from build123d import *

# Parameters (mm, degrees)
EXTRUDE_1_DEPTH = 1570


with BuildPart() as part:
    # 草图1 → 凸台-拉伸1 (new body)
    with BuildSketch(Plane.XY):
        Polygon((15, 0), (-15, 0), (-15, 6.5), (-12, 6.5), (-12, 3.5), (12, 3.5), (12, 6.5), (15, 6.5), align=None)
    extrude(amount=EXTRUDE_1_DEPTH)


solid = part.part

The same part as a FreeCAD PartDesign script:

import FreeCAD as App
import Part
import Sketcher
from FreeCAD import Vector
Q = App.Units.Quantity


def add_polygon(sketch, points):
    """Adds a closed chain of lines whose ends are joined by coincident constraints."""
    first, n = sketch.GeometryCount, len(points)
    for a, b in zip(points, points[1:] + points[:1]):
        sketch.addGeometry(Part.LineSegment(App.Vector(*a, 0), App.Vector(*b, 0)), False)
    for i in range(n):
        sketch.addConstraint(Sketcher.Constraint("Coincident", first + i, 2, first + (i + 1) % n, 1))

doc = App.newDocument("Part")
body = doc.addObject("PartDesign::Body", "Body")

# Sketch on XY plane
sketch1 = body.newObject("Sketcher::SketchObject", "Sketch")
sketch1.AttachmentSupport = (doc.getObject("XY_Plane"), [""])
sketch1.MapMode = "FlatFace"
add_polygon(sketch1, [(-15, 0), (15, 0), (15, 6.5), (12, 6.5), (12, 3.5), (-12, 3.5), (-12, 6.5), (-15, 6.5)])  # lines 0-7
sketch1.addConstraint([
    Sketcher.Constraint("Horizontal", 0),
    Sketcher.Constraint("Vertical", 1),
    Sketcher.Constraint("Horizontal", 2),
    Sketcher.Constraint("Vertical", 3),
    Sketcher.Constraint("Horizontal", 4),
    Sketcher.Constraint("Vertical", 5),
    Sketcher.Constraint("Horizontal", 6),
    Sketcher.Constraint("Vertical", 7),
    Sketcher.Constraint("Symmetric", 0, 2, 7, 2, -1, 1),
    Sketcher.Constraint("Symmetric", 2, 2, 5, 2, -2),
    Sketcher.Constraint("Equal", 6, 3),
    Sketcher.Constraint("DistanceX", 0, 1, 0, 2, Q("30 mm")),
    Sketcher.Constraint("DistanceX", 2, 2, 2, 1, Q("3 mm")),
    Sketcher.Constraint("DistanceY", 1, 1, 1, 2, Q("6.5 mm")),
])
pad1 = body.newObject("PartDesign::Pad", "Pad")
pad1.Profile = sketch1
pad1.Length = 1570

doc.recompute()
